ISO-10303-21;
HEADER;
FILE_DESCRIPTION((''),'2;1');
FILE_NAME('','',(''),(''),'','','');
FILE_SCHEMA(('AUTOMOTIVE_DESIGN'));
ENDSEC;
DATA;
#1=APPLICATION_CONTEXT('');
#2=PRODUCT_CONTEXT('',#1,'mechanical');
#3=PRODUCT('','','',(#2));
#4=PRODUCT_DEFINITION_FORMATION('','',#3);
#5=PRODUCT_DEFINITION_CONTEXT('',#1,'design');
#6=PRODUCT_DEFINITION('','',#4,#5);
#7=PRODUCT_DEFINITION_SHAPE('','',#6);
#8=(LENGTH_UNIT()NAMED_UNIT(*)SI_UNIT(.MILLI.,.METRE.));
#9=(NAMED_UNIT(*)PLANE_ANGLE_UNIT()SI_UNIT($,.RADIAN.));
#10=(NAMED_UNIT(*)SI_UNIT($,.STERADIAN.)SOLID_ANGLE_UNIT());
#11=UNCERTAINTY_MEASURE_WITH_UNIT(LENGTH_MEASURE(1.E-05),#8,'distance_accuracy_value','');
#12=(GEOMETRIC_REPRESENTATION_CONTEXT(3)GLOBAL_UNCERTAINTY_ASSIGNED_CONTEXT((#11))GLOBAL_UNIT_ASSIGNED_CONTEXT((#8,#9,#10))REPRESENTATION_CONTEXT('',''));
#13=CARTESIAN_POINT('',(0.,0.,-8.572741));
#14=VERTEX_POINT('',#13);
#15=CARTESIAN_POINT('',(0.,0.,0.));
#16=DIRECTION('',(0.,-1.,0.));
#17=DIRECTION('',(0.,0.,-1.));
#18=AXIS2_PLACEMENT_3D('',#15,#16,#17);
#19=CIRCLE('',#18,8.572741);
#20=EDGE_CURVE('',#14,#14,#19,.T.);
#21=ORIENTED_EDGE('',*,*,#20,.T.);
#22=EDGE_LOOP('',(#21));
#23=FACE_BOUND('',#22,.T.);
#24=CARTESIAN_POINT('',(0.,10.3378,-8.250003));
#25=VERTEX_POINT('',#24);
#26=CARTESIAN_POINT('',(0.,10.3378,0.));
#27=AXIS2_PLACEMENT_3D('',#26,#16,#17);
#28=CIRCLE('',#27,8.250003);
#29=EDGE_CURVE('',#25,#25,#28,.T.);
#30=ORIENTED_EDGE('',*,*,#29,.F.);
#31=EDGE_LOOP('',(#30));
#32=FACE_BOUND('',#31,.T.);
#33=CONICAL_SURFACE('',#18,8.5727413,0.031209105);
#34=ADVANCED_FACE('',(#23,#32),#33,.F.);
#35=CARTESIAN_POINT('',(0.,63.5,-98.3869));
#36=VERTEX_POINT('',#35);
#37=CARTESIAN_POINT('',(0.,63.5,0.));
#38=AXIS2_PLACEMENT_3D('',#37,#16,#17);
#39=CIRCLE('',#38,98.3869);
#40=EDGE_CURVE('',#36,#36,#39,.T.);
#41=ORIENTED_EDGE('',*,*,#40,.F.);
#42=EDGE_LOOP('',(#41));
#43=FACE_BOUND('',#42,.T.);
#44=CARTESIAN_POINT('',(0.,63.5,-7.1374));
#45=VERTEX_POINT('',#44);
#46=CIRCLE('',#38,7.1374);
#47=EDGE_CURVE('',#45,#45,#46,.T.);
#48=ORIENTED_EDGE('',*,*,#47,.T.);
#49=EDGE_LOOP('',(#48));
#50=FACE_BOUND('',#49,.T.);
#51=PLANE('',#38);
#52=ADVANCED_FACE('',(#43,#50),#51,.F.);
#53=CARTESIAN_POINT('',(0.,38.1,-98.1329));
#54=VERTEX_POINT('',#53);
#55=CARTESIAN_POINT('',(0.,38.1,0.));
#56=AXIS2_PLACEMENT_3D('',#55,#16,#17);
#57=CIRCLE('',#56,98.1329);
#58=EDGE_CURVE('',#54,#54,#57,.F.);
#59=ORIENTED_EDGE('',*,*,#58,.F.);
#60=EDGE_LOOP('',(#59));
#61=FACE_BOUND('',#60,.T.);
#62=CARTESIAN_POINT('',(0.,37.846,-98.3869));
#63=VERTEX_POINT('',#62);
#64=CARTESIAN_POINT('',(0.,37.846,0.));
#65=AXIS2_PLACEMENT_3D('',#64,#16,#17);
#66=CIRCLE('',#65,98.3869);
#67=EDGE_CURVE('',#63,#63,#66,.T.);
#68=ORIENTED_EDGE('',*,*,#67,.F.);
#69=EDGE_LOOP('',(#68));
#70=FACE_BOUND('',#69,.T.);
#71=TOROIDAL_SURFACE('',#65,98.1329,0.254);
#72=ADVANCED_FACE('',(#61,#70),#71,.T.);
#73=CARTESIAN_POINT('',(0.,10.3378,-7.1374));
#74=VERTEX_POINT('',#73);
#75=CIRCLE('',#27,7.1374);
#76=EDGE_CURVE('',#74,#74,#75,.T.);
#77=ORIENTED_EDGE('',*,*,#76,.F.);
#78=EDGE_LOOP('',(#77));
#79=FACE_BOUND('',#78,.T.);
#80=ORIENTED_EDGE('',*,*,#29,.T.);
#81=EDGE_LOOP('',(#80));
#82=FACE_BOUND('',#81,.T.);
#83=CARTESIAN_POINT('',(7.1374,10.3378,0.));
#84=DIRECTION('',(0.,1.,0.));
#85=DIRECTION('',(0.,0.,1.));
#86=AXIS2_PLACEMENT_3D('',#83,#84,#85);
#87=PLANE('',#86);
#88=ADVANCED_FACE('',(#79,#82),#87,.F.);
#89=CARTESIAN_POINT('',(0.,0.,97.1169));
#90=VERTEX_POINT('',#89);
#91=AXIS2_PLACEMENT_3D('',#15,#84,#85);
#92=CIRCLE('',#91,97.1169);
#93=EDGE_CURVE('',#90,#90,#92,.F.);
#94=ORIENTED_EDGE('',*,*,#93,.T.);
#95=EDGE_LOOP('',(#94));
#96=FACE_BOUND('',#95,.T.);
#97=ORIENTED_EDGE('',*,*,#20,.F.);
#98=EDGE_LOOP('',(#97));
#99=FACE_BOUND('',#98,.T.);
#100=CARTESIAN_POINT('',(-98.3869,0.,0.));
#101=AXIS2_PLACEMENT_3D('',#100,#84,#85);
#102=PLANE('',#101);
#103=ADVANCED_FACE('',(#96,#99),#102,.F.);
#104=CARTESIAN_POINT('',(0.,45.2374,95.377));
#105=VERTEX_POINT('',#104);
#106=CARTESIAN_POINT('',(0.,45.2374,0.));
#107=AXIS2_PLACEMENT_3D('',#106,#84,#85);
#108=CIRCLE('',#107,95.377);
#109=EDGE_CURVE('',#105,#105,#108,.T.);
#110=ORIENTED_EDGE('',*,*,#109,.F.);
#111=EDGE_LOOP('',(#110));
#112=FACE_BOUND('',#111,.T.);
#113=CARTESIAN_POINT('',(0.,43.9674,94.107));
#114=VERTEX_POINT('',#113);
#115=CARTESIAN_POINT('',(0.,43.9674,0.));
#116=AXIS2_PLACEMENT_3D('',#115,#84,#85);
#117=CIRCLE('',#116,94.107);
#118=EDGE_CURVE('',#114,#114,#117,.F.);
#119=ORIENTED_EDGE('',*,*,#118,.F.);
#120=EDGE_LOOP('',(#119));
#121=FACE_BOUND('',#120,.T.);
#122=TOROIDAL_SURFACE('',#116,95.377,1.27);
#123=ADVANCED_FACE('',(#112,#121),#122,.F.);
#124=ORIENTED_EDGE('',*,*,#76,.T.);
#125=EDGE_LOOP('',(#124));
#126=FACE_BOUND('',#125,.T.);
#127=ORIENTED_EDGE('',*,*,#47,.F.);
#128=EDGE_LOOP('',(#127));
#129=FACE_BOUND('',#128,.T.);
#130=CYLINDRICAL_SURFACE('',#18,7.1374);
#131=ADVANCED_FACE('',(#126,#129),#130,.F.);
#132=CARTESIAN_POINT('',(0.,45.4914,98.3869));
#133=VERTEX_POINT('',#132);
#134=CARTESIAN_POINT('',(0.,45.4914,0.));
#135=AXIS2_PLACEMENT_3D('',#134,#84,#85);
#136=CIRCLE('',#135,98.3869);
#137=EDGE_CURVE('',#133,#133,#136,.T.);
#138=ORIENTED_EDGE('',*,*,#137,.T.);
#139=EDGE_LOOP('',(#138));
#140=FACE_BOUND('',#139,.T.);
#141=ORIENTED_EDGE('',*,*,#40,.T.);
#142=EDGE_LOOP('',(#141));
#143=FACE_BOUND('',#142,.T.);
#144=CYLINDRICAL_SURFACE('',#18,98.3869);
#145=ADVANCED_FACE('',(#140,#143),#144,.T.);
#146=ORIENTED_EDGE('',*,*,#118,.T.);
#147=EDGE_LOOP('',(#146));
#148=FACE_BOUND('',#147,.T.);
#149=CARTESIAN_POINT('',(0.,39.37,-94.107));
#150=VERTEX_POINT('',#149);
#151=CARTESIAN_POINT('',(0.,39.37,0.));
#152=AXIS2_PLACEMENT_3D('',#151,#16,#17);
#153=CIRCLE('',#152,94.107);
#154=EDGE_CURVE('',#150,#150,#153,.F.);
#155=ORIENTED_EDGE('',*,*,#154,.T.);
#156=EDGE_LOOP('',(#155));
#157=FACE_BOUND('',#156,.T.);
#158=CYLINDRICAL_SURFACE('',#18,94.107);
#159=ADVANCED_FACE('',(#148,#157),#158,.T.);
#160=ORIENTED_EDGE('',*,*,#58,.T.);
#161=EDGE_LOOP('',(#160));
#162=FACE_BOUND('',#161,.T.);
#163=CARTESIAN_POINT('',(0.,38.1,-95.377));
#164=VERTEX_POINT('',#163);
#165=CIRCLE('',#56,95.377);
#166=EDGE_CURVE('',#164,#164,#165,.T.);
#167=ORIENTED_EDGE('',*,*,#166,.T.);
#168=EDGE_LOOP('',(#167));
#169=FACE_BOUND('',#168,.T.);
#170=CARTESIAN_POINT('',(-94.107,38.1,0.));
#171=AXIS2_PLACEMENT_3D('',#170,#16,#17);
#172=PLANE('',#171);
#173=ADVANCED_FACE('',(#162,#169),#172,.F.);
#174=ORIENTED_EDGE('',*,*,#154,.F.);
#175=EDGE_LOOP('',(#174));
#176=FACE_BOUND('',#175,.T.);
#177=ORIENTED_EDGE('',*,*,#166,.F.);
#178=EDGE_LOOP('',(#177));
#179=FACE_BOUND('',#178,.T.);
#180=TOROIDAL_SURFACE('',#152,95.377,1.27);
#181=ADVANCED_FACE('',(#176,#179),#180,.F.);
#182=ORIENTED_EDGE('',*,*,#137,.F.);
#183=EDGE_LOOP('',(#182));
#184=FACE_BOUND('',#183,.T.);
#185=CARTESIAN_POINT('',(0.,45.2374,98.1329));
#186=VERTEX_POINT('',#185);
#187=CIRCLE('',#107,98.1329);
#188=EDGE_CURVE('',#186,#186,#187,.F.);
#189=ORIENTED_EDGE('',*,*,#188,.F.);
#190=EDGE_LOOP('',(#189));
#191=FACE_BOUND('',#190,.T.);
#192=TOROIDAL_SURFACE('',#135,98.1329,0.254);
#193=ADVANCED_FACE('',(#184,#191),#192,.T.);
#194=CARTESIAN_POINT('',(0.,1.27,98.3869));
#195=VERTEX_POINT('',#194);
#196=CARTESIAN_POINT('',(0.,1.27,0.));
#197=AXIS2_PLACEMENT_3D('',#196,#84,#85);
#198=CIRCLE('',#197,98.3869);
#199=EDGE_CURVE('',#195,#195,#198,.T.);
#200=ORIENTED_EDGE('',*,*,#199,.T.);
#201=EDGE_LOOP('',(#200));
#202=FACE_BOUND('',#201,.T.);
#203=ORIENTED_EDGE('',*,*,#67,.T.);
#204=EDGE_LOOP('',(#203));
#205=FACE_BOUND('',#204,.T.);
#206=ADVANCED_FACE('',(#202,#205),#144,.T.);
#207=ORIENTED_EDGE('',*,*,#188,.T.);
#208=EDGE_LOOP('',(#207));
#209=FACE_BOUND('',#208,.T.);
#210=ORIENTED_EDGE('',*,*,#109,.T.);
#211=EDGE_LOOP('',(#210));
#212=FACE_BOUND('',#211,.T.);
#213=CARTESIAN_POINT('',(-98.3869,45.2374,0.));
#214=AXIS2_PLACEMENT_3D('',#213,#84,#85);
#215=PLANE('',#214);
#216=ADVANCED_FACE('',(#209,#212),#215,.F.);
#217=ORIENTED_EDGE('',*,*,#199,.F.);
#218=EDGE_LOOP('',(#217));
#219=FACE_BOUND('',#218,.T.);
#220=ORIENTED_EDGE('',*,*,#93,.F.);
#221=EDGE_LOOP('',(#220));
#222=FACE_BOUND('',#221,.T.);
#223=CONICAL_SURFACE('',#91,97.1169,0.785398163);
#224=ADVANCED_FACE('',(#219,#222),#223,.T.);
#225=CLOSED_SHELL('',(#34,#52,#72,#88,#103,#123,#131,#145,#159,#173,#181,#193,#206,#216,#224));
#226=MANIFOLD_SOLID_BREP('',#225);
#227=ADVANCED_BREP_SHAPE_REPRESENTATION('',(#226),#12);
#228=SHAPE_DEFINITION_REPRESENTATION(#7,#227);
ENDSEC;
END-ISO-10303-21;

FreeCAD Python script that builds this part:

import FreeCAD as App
import Part
import Sketcher

V = App.Vector
Q = App.Units.Quantity


def edges_at(feature, points):
    """Names of the edges that pass closest to the given points."""
    edges = feature.Shape.Edges
    near = lambda p: min(range(len(edges)), key=lambda i: edges[i].distToShape(Part.Vertex(*p))[0])
    return sorted({f"Edge{near(p) + 1}" for p in points})

doc = App.newDocument("Part")
body = doc.addObject("PartDesign::Body", "Body")

# Sketch on XY plane
sketch1 = body.newObject("Sketcher::SketchObject", "Sketch")
sketch1.AttachmentSupport = (doc.getObject("XY_Plane"), [""])
sketch1.MapMode = "FlatFace"
sketch1.addGeometry(Part.LineSegment(V(0, 0, 0), V(0, 63.5, 0)), False)
sketch1.addGeometry(Part.LineSegment(V(0, 63.5, 0), V(-98.4, 63.5, 0)), False)
sketch1.addGeometry(Part.LineSegment(V(-98.4, 63.5, 0), V(-98.4, 45.2, 0)), False)
sketch1.addGeometry(Part.LineSegment(V(-98.4, 45.2, 0), V(-94.1, 45.2, 0)), False)
sketch1.addGeometry(Part.LineSegment(V(-94.1, 45.2, 0), V(-94.1, 38.1, 0)), False)
sketch1.addGeometry(Part.LineSegment(V(-94.1, 38.1, 0), V(-98.4, 38.1, 0)), False)
sketch1.addGeometry(Part.LineSegment(V(-98.4, 38.1, 0), V(-98.4, 0, 0)), False)
sketch1.addGeometry(Part.LineSegment(V(-98.4, 0, 0), V(0, 0, 0)), False)
sketch1.addConstraint(Sketcher.Constraint("Coincident", 0, 2, 1, 1))
sketch1.addConstraint(Sketcher.Constraint("Coincident", 1, 2, 2, 1))
sketch1.addConstraint(Sketcher.Constraint("Coincident", 2, 2, 3, 1))
sketch1.addConstraint(Sketcher.Constraint("Coincident", 3, 2, 4, 1))
sketch1.addConstraint(Sketcher.Constraint("Coincident", 4, 2, 5, 1))
sketch1.addConstraint(Sketcher.Constraint("Coincident", 5, 2, 6, 1))
sketch1.addConstraint(Sketcher.Constraint("Coincident", 6, 2, 7, 1))
sketch1.addConstraint(Sketcher.Constraint("Coincident", 7, 2, 0, 1))
sketch1.addConstraint(Sketcher.Constraint("Vertical", 0))
sketch1.addConstraint(Sketcher.Constraint("Horizontal", 1))
sketch1.addConstraint(Sketcher.Constraint("Vertical", 2))
sketch1.addConstraint(Sketcher.Constraint("Horizontal", 3))
sketch1.addConstraint(Sketcher.Constraint("Vertical", 4))
sketch1.addConstraint(Sketcher.Constraint("Horizontal", 5))
sketch1.addConstraint(Sketcher.Constraint("Vertical", 6))
sketch1.addConstraint(Sketcher.Constraint("Horizontal", 7))
sketch1.addConstraint(Sketcher.Constraint("Coincident", 7, 2, -1, 1))
sketch1.addConstraint(Sketcher.Constraint("Vertical", 2, 2, 5, 2))
sketch1.addConstraint(Sketcher.Constraint("DistanceY", 0, 1, 0, 2, Q("2.5 in")))
sketch1.addConstraint(Sketcher.Constraint("DistanceY", 6, 2, 6, 1, Q("1.5 in")))
sketch1.addConstraint(Sketcher.Constraint("DistanceY", 2, 2, 2, 1, Q("0.719 in")))
sketch1.addConstraint(Sketcher.Constraint("DistanceX", 1, 2, 1, 1, Q("3.8735 in")))
sketch1.addConstraint(Sketcher.Constraint("DistanceX", 3, 1, 3, 2, Q("0.1685 in")))
revolution = body.newObject("PartDesign::Revolution", "Revolution")
revolution.Profile = sketch1
revolution.ReferenceAxis = (sketch1, ["V_Axis"])
revolution.Angle = 360
doc.recompute()

fillet = body.newObject("PartDesign::Fillet", "Fillet")
fillet.Base = (revolution, edges_at(revolution, [(0, 38.1, 94.107), (0, 45.237, 94.107)]))
fillet.Radius = Q("0.05 in")
doc.recompute()

fillet2 = body.newObject("PartDesign::Fillet", "Fillet001")
fillet2.Base = (fillet, edges_at(fillet, [(0, 38.1, 98.387), (0, 45.237, 98.387)]))
fillet2.Radius = Q("0.01 in")
doc.recompute()

chamfer = body.newObject("PartDesign::Chamfer", "Chamfer")
chamfer.Base = (fillet2, edges_at(fillet2, [(0, 0, 98.387)]))
chamfer.Size = Q("0.05 in")

# Sketch on YZ plane
sketch2 = body.newObject("Sketcher::SketchObject", "Sketch001")
sketch2.AttachmentSupport = (doc.getObject("YZ_Plane"), [""])
sketch2.MapMode = "FlatFace"
sketch2.addGeometry(Part.LineSegment(V(63.5, 0, 0), V(0, 0, 0)), False)
sketch2.addGeometry(Part.LineSegment(V(0, 0, 0), V(0, -8.6, 0)), False)
sketch2.addGeometry(Part.LineSegment(V(0, -8.6, 0), V(10.3, -8.3, 0)), False)
sketch2.addGeometry(Part.LineSegment(V(10.3, -8.3, 0), V(10.3, -7.1, 0)), False)
sketch2.addGeometry(Part.LineSegment(V(10.3, -7.1, 0), V(63.5, -7.1, 0)), False)
sketch2.addGeometry(Part.LineSegment(V(63.5, -7.1, 0), V(63.5, 0, 0)), False)
sketch2.addConstraint(Sketcher.Constraint("Coincident", 0, 2, 1, 1))
sketch2.addConstraint(Sketcher.Constraint("Coincident", 1, 2, 2, 1))
sketch2.addConstraint(Sketcher.Constraint("Coincident", 2, 2, 3, 1))
sketch2.addConstraint(Sketcher.Constraint("Coincident", 3, 2, 4, 1))
sketch2.addConstraint(Sketcher.Constraint("Coincident", 4, 2, 5, 1))
sketch2.addConstraint(Sketcher.Constraint("Coincident", 5, 2, 0, 1))
sketch2.addConstraint(Sketcher.Constraint("Horizontal", 0))
sketch2.addConstraint(Sketcher.Constraint("Vertical", 1))
sketch2.addConstraint(Sketcher.Constraint("Vertical", 3))
sketch2.addConstraint(Sketcher.Constraint("Horizontal", 4))
sketch2.addConstraint(Sketcher.Constraint("Vertical", 5))
sketch2.addConstraint(Sketcher.Constraint("Coincident", 0, 2, -1, 1))
sketch2.addConstraint(Sketcher.Constraint("DistanceX", 0, 2, 0, 1, Q("2.5 in")))
sketch2.addConstraint(Sketcher.Constraint("DistanceX", 4, 1, 4, 2, Q("2.093 in")))
sketch2.addConstraint(Sketcher.Constraint("DistanceY", 5, 1, 5, 2, Q("0.281 in")))
sketch2.addConstraint(Sketcher.Constraint("DistanceY", 1, 2, 1, 1, 8.572741))
sketch2.addConstraint(Sketcher.Constraint("DistanceY", 3, 1, 3, 2, 1.112603))
groove = body.newObject("PartDesign::Groove", "Groove")
groove.Profile = sketch2
groove.ReferenceAxis = (sketch2, ["H_Axis"])
groove.Angle = 360

doc.recompute()
